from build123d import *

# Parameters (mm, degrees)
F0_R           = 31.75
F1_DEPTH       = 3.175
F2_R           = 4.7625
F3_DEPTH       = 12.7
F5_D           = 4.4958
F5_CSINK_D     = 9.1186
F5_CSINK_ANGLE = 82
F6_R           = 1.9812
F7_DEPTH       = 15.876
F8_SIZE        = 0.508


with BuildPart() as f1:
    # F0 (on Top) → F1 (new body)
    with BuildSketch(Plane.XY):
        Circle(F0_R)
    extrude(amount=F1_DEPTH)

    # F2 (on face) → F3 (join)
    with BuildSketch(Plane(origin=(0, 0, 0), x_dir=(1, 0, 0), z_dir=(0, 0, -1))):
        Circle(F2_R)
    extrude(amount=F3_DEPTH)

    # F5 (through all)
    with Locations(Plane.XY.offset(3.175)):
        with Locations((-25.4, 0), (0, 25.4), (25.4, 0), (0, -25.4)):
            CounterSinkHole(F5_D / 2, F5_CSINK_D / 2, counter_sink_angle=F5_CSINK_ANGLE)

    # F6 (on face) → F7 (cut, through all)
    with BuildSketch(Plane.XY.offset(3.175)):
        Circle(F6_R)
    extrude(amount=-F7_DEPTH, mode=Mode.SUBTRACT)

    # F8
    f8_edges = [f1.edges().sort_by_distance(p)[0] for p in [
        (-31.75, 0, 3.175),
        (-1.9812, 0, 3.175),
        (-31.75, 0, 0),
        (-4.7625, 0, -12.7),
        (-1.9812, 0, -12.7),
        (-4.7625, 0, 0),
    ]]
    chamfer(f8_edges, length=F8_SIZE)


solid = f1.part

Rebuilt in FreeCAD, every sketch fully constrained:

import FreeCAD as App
import Part
import Sketcher

V = App.Vector
Q = App.Units.Quantity


def edges_at(feature, points):
    """Names of the edges that pass closest to the given points."""
    edges = feature.Shape.Edges
    near = lambda p: min(range(len(edges)), key=lambda i: edges[i].distToShape(Part.Vertex(*p))[0])
    return sorted({f"Edge{near(p) + 1}" for p in points})

doc = App.newDocument("Part")
body = doc.addObject("PartDesign::Body", "Body")

sketch1 = doc.addObject("Sketcher::SketchObject", "Sketch")
body.addObject(sketch1)
sketch1.AttachmentSupport = (doc.XY_Plane, [""])
sketch1.MapMode = "FlatFace"
sketch1.addGeometry(Part.Circle(V(0, 0, 0), V(0, 0, 1), 31.75), False)
sketch1.addConstraint(Sketcher.Constraint("Coincident", 0, 3, -1, 1))
sketch1.addConstraint(Sketcher.Constraint("Diameter", 0, Q("2.5 in")))
pad1 = doc.addObject("PartDesign::Pad", "Pad")
body.addObject(pad1)
pad1.Profile = sketch1
pad1.Length = Q("0.125 in")

sketch2 = doc.addObject("Sketcher::SketchObject", "Sketch001")
body.addObject(sketch2)
sketch2.AttachmentSupport = (doc.XY_Plane, [""])
sketch2.MapMode = "FlatFace"
sketch2.addGeometry(Part.Circle(V(0, 0, 0), V(0, 0, 1), 4.7625), False)
sketch2.addConstraint(Sketcher.Constraint("Coincident", 0, 3, -1, 1))
sketch2.addConstraint(Sketcher.Constraint("Diameter", 0, Q("0.375 in")))
pad2 = doc.addObject("PartDesign::Pad", "Pad001")
body.addObject(pad2)
pad2.Profile = sketch2
pad2.Length = Q("0.5 in")
pad2.Reversed = True

sketch3 = doc.addObject("Sketcher::SketchObject", "Sketch002")
body.addObject(sketch3)
sketch3.AttachmentSupport = (doc.XY_Plane, [""])
sketch3.MapMode = "FlatFace"
sketch3.AttachmentOffset = App.Placement(V(0, 0, 0.125 * 25.4), App.Rotation())
sketch3.addGeometry(Part.Circle(V(-25.4, 0, 0), V(0, 0, 1), 2.2479), False)
sketch3.addGeometry(Part.Circle(V(0, 25.4, 0), V(0, 0, 1), 2.2479), False)
sketch3.addGeometry(Part.Circle(V(25.4, 0, 0), V(0, 0, 1), 2.2479), False)
sketch3.addGeometry(Part.Circle(V(0, -25.4, 0), V(0, 0, 1), 2.2479), False)
sketch3.addConstraint(Sketcher.Constraint("Equal", 0, 1))
sketch3.addConstraint(Sketcher.Constraint("Equal", 1, 2))
sketch3.addConstraint(Sketcher.Constraint("Equal", 2, 3))
sketch3.addConstraint(Sketcher.Constraint("Symmetric", 0, 3, 2, 3, -1, 1))
sketch3.addConstraint(Sketcher.Constraint("Symmetric", 1, 3, 3, 3, -1, 1))
sketch3.addConstraint(Sketcher.Constraint("PointOnObject", 0, 3, -1))
sketch3.addConstraint(Sketcher.Constraint("PointOnObject", 1, 3, -2))
sketch3.addConstraint(Sketcher.Constraint("Diameter", 0, Q("0.177 in")))
sketch3.addConstraint(Sketcher.Constraint("DistanceX", 0, 3, -1, 1, Q("1 in")))
sketch3.addConstraint(Sketcher.Constraint("DistanceY", -1, 1, 1, 3, Q("1 in")))
doc.recompute()
hole = doc.addObject("PartDesign::Hole", "Hole")
body.addObject(hole)
hole.Profile = sketch3
hole.ThreadType = "None"
hole.Diameter = Q("0.177 in")
hole.DepthType = "ThroughAll"
hole.HoleCutType = "Countersink"
hole.HoleCutDiameter = Q("0.359 in")
hole.HoleCutCountersinkAngle = 82

sketch4 = doc.addObject("Sketcher::SketchObject", "Sketch003")
body.addObject(sketch4)
sketch4.AttachmentSupport = (doc.XY_Plane, [""])
sketch4.MapMode = "FlatFace"
sketch4.AttachmentOffset = App.Placement(V(0, 0, 0.125 * 25.4), App.Rotation())
sketch4.addGeometry(Part.Circle(V(0, 0, 0), V(0, 0, 1), 1.9812), False)
sketch4.addConstraint(Sketcher.Constraint("Coincident", 0, 3, -1, 1))
sketch4.addConstraint(Sketcher.Constraint("Diameter", 0, Q("0.156 in")))
pocket1 = doc.addObject("PartDesign::Pocket", "Pocket")
body.addObject(pocket1)
pocket1.Profile = sketch4
pocket1.Type = "ThroughAll"
doc.recompute()

chamfer = doc.addObject("PartDesign::Chamfer", "Chamfer")
body.addObject(chamfer)
chamfer.Base = (pocket1, edges_at(pocket1, [
    (-31.75, 0, 3.175),
    (-1.981, 0, 3.175),
    (-31.75, 0, 0),
    (-4.763, 0, -12.7),
    (-1.981, 0, -12.7),
    (-4.763, 0, 0),
]))
chamfer.Size = Q("0.02 in")

doc.recompute()
